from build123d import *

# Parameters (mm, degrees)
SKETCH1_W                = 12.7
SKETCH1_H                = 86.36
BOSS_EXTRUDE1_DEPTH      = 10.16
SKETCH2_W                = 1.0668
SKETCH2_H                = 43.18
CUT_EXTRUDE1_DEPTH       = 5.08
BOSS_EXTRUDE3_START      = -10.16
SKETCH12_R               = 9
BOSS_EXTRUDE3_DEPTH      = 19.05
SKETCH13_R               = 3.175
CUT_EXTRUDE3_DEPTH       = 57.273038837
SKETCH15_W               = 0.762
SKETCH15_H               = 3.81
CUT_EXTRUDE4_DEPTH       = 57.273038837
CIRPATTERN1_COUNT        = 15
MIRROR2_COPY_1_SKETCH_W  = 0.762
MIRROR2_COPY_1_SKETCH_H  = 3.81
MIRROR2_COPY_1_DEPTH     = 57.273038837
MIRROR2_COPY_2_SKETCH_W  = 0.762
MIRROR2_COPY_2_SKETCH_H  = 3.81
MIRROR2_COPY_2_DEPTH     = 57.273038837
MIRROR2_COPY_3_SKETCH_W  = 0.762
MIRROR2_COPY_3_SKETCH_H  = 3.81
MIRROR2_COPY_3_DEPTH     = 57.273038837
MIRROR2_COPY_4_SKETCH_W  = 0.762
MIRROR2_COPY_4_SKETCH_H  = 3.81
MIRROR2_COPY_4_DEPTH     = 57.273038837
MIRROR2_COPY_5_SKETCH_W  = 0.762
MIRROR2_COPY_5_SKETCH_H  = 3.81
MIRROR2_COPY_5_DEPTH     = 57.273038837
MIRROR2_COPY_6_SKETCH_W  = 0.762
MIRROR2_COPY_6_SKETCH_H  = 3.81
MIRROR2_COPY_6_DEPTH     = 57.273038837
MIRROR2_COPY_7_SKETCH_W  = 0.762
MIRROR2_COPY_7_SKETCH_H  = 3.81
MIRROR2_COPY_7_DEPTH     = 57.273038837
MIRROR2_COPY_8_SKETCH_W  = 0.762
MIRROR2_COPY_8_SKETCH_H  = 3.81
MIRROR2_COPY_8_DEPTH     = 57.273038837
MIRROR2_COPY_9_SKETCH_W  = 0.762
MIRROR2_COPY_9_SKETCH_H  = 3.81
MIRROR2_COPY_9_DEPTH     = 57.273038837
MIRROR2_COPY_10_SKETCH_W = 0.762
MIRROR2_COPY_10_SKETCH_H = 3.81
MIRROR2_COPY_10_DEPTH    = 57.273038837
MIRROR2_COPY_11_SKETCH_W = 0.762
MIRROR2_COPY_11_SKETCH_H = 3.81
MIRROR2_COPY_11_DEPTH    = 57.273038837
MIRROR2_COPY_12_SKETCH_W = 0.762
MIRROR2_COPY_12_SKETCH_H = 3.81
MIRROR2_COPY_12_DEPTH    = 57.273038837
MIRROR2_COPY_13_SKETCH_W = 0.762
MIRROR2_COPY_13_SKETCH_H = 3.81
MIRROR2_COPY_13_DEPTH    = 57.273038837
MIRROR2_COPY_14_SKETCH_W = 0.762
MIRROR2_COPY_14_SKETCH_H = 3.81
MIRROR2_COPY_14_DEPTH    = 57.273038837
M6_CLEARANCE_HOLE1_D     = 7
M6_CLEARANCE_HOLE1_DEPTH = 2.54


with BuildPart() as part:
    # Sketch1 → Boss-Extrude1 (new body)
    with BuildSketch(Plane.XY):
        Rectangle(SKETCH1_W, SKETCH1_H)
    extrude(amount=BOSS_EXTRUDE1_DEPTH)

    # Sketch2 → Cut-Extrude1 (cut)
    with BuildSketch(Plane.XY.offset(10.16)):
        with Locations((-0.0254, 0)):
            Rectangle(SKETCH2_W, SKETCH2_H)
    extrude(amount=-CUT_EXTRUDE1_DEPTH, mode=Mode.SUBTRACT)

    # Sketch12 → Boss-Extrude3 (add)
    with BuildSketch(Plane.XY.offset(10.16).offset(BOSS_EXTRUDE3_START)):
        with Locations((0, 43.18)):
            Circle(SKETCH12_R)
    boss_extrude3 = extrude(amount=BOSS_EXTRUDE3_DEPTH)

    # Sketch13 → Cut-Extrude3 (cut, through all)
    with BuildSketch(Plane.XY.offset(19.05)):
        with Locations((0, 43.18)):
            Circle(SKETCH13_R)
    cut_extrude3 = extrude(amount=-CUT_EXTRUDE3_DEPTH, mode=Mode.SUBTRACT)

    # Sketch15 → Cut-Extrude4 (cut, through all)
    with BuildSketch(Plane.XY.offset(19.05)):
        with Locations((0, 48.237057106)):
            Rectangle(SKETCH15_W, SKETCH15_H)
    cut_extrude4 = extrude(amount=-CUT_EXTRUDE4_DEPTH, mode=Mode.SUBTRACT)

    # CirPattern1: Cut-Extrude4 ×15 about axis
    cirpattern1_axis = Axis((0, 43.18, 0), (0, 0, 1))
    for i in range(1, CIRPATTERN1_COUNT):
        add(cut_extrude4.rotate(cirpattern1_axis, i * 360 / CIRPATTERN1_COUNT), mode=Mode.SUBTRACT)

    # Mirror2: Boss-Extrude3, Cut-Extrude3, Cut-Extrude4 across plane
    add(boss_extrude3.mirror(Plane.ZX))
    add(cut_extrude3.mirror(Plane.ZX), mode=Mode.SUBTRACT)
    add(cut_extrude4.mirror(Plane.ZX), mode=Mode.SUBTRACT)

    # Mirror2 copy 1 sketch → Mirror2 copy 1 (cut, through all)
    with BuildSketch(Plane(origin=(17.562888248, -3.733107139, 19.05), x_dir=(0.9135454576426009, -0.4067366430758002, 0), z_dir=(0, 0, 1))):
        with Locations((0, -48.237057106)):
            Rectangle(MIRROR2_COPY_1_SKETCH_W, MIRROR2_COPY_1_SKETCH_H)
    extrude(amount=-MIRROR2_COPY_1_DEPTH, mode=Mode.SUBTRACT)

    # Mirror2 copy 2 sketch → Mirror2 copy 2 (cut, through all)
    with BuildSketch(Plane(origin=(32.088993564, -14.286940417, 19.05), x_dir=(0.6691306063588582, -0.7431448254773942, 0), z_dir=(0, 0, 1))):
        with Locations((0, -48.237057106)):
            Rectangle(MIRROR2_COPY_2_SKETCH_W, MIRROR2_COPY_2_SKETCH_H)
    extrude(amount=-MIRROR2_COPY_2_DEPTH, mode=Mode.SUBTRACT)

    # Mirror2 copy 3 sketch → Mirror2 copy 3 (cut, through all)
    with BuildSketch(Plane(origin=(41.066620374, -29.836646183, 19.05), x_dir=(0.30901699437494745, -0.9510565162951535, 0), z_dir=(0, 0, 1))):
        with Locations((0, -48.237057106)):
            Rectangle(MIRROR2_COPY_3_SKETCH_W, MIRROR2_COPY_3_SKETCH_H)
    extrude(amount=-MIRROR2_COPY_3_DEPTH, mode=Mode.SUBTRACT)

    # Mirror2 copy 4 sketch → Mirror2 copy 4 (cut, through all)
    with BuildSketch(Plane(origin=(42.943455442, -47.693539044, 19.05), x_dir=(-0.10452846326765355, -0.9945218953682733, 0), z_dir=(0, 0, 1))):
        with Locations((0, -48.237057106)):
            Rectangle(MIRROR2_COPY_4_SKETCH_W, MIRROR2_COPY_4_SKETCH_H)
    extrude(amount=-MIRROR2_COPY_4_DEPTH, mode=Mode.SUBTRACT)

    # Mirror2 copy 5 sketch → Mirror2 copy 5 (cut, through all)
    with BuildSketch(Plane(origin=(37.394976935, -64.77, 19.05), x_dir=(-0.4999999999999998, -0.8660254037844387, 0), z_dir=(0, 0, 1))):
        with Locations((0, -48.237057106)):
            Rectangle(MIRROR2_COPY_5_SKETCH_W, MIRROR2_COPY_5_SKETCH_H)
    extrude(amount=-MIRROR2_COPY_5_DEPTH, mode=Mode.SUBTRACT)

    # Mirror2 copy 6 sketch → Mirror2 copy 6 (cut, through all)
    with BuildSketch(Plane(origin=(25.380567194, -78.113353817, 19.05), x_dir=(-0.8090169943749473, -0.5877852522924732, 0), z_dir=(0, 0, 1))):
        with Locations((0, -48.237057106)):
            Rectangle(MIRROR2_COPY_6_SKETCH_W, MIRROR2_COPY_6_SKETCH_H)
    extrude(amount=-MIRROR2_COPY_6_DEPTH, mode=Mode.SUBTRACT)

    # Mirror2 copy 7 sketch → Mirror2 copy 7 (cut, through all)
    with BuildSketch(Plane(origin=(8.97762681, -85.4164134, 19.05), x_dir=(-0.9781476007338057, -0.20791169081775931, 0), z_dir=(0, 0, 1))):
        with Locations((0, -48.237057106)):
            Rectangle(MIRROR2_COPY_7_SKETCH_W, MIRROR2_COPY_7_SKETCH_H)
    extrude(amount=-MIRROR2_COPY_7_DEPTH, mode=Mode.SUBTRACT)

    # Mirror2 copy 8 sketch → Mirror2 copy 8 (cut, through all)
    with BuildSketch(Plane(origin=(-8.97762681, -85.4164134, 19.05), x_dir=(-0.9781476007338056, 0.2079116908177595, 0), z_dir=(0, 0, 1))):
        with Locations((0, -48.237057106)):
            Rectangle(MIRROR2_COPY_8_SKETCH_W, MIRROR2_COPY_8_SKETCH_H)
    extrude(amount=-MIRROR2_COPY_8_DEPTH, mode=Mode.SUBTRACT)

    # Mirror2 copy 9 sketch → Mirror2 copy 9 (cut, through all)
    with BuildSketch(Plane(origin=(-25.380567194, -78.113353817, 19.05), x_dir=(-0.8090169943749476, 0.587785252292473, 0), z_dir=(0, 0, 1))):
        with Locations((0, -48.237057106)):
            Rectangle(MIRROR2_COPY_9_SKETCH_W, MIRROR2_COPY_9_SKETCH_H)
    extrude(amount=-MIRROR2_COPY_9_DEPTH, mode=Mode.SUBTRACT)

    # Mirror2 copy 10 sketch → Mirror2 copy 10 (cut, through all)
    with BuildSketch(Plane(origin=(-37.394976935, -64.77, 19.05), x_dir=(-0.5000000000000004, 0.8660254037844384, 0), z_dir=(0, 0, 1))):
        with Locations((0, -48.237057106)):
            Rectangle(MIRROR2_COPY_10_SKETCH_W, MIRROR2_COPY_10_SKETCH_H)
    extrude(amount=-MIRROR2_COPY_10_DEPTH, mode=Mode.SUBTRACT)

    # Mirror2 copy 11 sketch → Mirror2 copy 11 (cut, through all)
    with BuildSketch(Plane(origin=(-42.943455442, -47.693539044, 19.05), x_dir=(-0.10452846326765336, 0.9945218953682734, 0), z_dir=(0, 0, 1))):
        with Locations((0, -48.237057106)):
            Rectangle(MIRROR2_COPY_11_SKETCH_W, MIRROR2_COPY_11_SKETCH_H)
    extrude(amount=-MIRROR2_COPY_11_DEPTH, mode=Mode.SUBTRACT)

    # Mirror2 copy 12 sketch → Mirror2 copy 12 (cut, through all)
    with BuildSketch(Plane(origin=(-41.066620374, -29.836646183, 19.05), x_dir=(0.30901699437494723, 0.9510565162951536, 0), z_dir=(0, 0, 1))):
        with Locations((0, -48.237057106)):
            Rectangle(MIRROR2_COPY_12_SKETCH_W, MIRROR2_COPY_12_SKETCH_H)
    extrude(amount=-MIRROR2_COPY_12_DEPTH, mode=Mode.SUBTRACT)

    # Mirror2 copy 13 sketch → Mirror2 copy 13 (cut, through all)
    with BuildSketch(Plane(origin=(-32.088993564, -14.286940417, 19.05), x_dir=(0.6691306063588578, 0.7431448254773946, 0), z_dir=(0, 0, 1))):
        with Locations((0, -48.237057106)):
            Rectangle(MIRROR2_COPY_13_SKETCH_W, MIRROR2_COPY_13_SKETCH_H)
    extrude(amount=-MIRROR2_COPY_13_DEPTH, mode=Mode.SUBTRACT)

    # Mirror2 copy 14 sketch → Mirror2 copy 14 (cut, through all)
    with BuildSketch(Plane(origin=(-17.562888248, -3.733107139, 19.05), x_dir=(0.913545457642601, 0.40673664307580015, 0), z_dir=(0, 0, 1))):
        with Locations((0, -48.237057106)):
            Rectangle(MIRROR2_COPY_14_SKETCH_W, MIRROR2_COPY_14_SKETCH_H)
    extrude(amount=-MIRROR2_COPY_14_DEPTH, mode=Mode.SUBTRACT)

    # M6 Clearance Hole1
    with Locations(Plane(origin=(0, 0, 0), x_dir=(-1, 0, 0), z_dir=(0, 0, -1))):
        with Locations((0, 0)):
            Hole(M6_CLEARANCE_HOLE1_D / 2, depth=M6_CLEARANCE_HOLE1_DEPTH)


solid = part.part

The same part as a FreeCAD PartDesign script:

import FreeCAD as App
import Part
import Sketcher
Q = App.Units.Quantity

doc = App.newDocument("Part")
body = doc.addObject("PartDesign::Body", "Body")

# Sketch on XY plane
sketch1 = body.newObject("Sketcher::SketchObject", "Sketch")
sketch1.AttachmentSupport = (doc.getObject("XY_Plane"), [""])
sketch1.MapMode = "FlatFace"
sketch1.addGeometry(Part.LineSegment(App.Vector(-6, 43, 0), App.Vector(-6, -43, 0)), False)
sketch1.addGeometry(Part.LineSegment(App.Vector(-6, -43, 0), App.Vector(6, -43, 0)), False)
sketch1.addGeometry(Part.LineSegment(App.Vector(6, -43, 0), App.Vector(6, 43, 0)), False)
sketch1.addGeometry(Part.LineSegment(App.Vector(6, 43, 0), App.Vector(-6, 43, 0)), False)
sketch1.addConstraint(Sketcher.Constraint("Coincident", 0, 2, 1, 1))
sketch1.addConstraint(Sketcher.Constraint("Coincident", 1, 2, 2, 1))
sketch1.addConstraint(Sketcher.Constraint("Coincident", 2, 2, 3, 1))
sketch1.addConstraint(Sketcher.Constraint("Coincident", 3, 2, 0, 1))
sketch1.addConstraint(Sketcher.Constraint("Vertical", 0))
sketch1.addConstraint(Sketcher.Constraint("Horizontal", 1))
sketch1.addConstraint(Sketcher.Constraint("Vertical", 2))
sketch1.addConstraint(Sketcher.Constraint("Horizontal", 3))
sketch1.addConstraint(Sketcher.Constraint("Symmetric", 0, 2, 2, 2, -1, 1))
sketch1.addConstraint(Sketcher.Constraint("DistanceX", 1, 1, 1, 2, Q("0.5 in")))
sketch1.addConstraint(Sketcher.Constraint("DistanceY", 0, 2, 0, 1, Q("3.4 in")))
pad1 = body.newObject("PartDesign::Pad", "Pad")
pad1.Profile = sketch1
pad1.Length = Q("0.4 in")

# Sketch on XY plane
sketch2 = body.newObject("Sketcher::SketchObject", "Sketch001")
sketch2.AttachmentSupport = (doc.getObject("XY_Plane"), [""])
sketch2.MapMode = "FlatFace"
sketch2.AttachmentOffset = App.Placement(App.Vector(0, 0, 0.4 * 25.4), App.Rotation())
sketch2.addGeometry(Part.LineSegment(App.Vector(-0.6, 21.6, 0), App.Vector(-0.6, -21.6, 0)), False)
sketch2.addGeometry(Part.LineSegment(App.Vector(-0.6, -21.6, 0), App.Vector(0.5, -21.6, 0)), False)
sketch2.addGeometry(Part.LineSegment(App.Vector(0.5, -21.6, 0), App.Vector(0.5, 21.6, 0)), False)
sketch2.addGeometry(Part.LineSegment(App.Vector(0.5, 21.6, 0), App.Vector(-0.6, 21.6, 0)), False)
sketch2.addConstraint(Sketcher.Constraint("Coincident", 0, 2, 1, 1))
sketch2.addConstraint(Sketcher.Constraint("Coincident", 1, 2, 2, 1))
sketch2.addConstraint(Sketcher.Constraint("Coincident", 2, 2, 3, 1))
sketch2.addConstraint(Sketcher.Constraint("Coincident", 3, 2, 0, 1))
sketch2.addConstraint(Sketcher.Constraint("Vertical", 0))
sketch2.addConstraint(Sketcher.Constraint("Horizontal", 1))
sketch2.addConstraint(Sketcher.Constraint("Vertical", 2))
sketch2.addConstraint(Sketcher.Constraint("Horizontal", 3))
sketch2.addConstraint(Sketcher.Constraint("DistanceY", 0, 2, 0, 1, Q("1.7 in")))
sketch2.addConstraint(Sketcher.Constraint("DistanceX", 1, 1, 1, 2, Q("0.042 in")))
sketch2.addConstraint(Sketcher.Constraint("DistanceY", 0, 2, -1, 1, Q("0.85 in")))
sketch2.addConstraint(Sketcher.Constraint("DistanceX", -1, 1, 1, 2, Q("0.02 in")))
pocket1 = body.newObject("PartDesign::Pocket", "Pocket")
pocket1.Profile = sketch2
pocket1.Length = Q("0.2 in")

# Sketch on XY plane
sketch3 = body.newObject("Sketcher::SketchObject", "Sketch002")
sketch3.AttachmentSupport = (doc.getObject("XY_Plane"), [""])
sketch3.MapMode = "FlatFace"
sketch3.addGeometry(Part.Circle(App.Vector(0, 43, 0), App.Vector(0, 0, 1), 9), False)
sketch3.addConstraint(Sketcher.Constraint("PointOnObject", 0, 3, -2))
sketch3.addConstraint(Sketcher.Constraint("DistanceY", -1, 1, 0, 3, Q("1.7 in")))
sketch3.addConstraint(Sketcher.Constraint("Diameter", 0, Q("18 mm")))
pad2 = body.newObject("PartDesign::Pad", "Pad001")
pad2.Profile = sketch3
pad2.Length = Q("0.75 in")

# Sketch on XY plane
sketch4 = body.newObject("Sketcher::SketchObject", "Sketch003")
sketch4.AttachmentSupport = (doc.getObject("XY_Plane"), [""])
sketch4.MapMode = "FlatFace"
sketch4.AttachmentOffset = App.Placement(App.Vector(0, 0, 0.75 * 25.4), App.Rotation())
sketch4.addGeometry(Part.Circle(App.Vector(0, 43.2, 0), App.Vector(0, 0, 1), 3.2), False)
sketch4.addConstraint(Sketcher.Constraint("PointOnObject", 0, 3, -2))
sketch4.addConstraint(Sketcher.Constraint("Diameter", 0, Q("0.25 in")))
sketch4.addConstraint(Sketcher.Constraint("DistanceY", -1, 1, 0, 3, Q("1.7 in")))
pocket2 = body.newObject("PartDesign::Pocket", "Pocket001")
pocket2.Profile = sketch4
pocket2.Type = "ThroughAll"

# Sketch on XY plane
sketch5 = body.newObject("Sketcher::SketchObject", "Sketch004")
sketch5.AttachmentSupport = (doc.getObject("XY_Plane"), [""])
sketch5.MapMode = "FlatFace"
sketch5.AttachmentOffset = App.Placement(App.Vector(0, 0, 0.75 * 25.4), App.Rotation())
sketch5.addGeometry(Part.LineSegment(App.Vector(-0.4, 50.1, 0), App.Vector(-0.4, 46.3, 0)), False)
sketch5.addGeometry(Part.LineSegment(App.Vector(-0.4, 46.3, 0), App.Vector(0.4, 46.3, 0)), False)
sketch5.addGeometry(Part.LineSegment(App.Vector(0.4, 46.3, 0), App.Vector(0.4, 50.1, 0)), False)
sketch5.addGeometry(Part.LineSegment(App.Vector(0.4, 50.1, 0), App.Vector(-0.4, 50.1, 0)), False)
sketch5.addConstraint(Sketcher.Constraint("Coincident", 0, 2, 1, 1))
sketch5.addConstraint(Sketcher.Constraint("Coincident", 1, 2, 2, 1))
sketch5.addConstraint(Sketcher.Constraint("Coincident", 2, 2, 3, 1))
sketch5.addConstraint(Sketcher.Constraint("Coincident", 3, 2, 0, 1))
sketch5.addConstraint(Sketcher.Constraint("Vertical", 0))
sketch5.addConstraint(Sketcher.Constraint("Horizontal", 1))
sketch5.addConstraint(Sketcher.Constraint("Vertical", 2))
sketch5.addConstraint(Sketcher.Constraint("Horizontal", 3))
sketch5.addConstraint(Sketcher.Constraint("DistanceX", 1, 1, 1, 2, Q("0.03 in")))
sketch5.addConstraint(Sketcher.Constraint("DistanceY", 0, 2, 0, 1, Q("0.15 in")))
sketch5.addConstraint(Sketcher.Constraint("DistanceX", 0, 2, -1, 1, Q("0.015 in")))
sketch5.addConstraint(Sketcher.Constraint("DistanceY", -1, 1, 0, 2, Q("46.332057 mm")))
pocket3 = body.newObject("PartDesign::Pocket", "Pocket002")
pocket3.Profile = sketch5
pocket3.Type = "ThroughAll"
doc.recompute()

datumline = body.newObject("PartDesign::Line", "DatumLine")
datumline.Placement = App.Placement(App.Vector(0, 43.18, 0), App.Rotation(App.Vector(0, 0, 1), App.Vector(0, 0, 1)))
polarpattern = body.newObject("PartDesign::PolarPattern", "PolarPattern")
polarpattern.Originals = [pocket3]
polarpattern.Axis = (datumline, [""])
polarpattern.Angle = 360
polarpattern.Occurrences = 15
body.Tip = polarpattern
doc.recompute()

mirrored = body.newObject("PartDesign::Mirrored", "Mirrored")
mirrored.Originals = [pad2, pocket2, pocket3]
mirrored.MirrorPlane = (doc.getObject("XZ_Plane"), [""])
body.Tip = mirrored

# Sketch on XY plane
sketch6 = body.newObject("Sketcher::SketchObject", "Sketch005")
sketch6.AttachmentSupport = (doc.getObject("XY_Plane"), [""])
sketch6.MapMode = "FlatFace"
sketch6.AttachmentOffset = App.Placement(App.Vector(0, 0, 0.75 * 25.4), App.Rotation())
sketch6.addGeometry(Part.LineSegment(App.Vector(-1.6, -45.9, 0), App.Vector(-3.2, -49.4, 0)), False)
sketch6.addGeometry(Part.LineSegment(App.Vector(-3.2, -49.4, 0), App.Vector(-2.5, -49.7, 0)), False)
sketch6.addGeometry(Part.LineSegment(App.Vector(-2.5, -49.7, 0), App.Vector(-0.9, -46.2, 0)), False)
sketch6.addGeometry(Part.LineSegment(App.Vector(-0.9, -46.2, 0), App.Vector(-1.6, -45.9, 0)), False)
sketch6.addConstraint(Sketcher.Constraint("Coincident", 0, 2, 1, 1))
sketch6.addConstraint(Sketcher.Constraint("Coincident", 1, 2, 2, 1))
sketch6.addConstraint(Sketcher.Constraint("Coincident", 2, 2, 3, 1))
sketch6.addConstraint(Sketcher.Constraint("Coincident", 3, 2, 0, 1))
sketch6.addConstraint(Sketcher.Constraint("Perpendicular", 0, 1))
sketch6.addConstraint(Sketcher.Constraint("Perpendicular", 1, 2))
sketch6.addConstraint(Sketcher.Constraint("Perpendicular", 2, 3))
sketch6.addConstraint(Sketcher.Constraint("Angle", 0, Q("-114 deg")))
sketch6.addConstraint(Sketcher.Constraint("Distance", 0, Q("0.15 in")))
sketch6.addConstraint(Sketcher.Constraint("Distance", 1, Q("0.03 in")))
sketch6.addConstraint(Sketcher.Constraint("DistanceY", 0, 2, -1, 1, Q("49.385189 mm")))
sketch6.addConstraint(Sketcher.Constraint("DistanceX", 0, 2, -1, 1, Q("3.179785 mm")))
pocket4 = body.newObject("PartDesign::Pocket", "Pocket003")
pocket4.Profile = sketch6
pocket4.Type = "ThroughAll"

# Sketch on XY plane
sketch7 = body.newObject("Sketcher::SketchObject", "Sketch006")
sketch7.AttachmentSupport = (doc.getObject("XY_Plane"), [""])
sketch7.MapMode = "FlatFace"
sketch7.AttachmentOffset = App.Placement(App.Vector(0, 0, 0.75 * 25.4), App.Rotation())
sketch7.addGeometry(Part.LineSegment(App.Vector(-2.6, -45, 0), App.Vector(-5.4, -47.6, 0)), False)
sketch7.addGeometry(Part.LineSegment(App.Vector(-5.4, -47.6, 0), App.Vector(-4.9, -48.1, 0)), False)
sketch7.addGeometry(Part.LineSegment(App.Vector(-4.9, -48.1, 0), App.Vector(-2.1, -45.6, 0)), False)
sketch7.addGeometry(Part.LineSegment(App.Vector(-2.1, -45.6, 0), App.Vector(-2.6, -45, 0)), False)
sketch7.addConstraint(Sketcher.Constraint("Coincident", 0, 2, 1, 1))
sketch7.addConstraint(Sketcher.Constraint("Coincident", 1, 2, 2, 1))
sketch7.addConstraint(Sketcher.Constraint("Coincident", 2, 2, 3, 1))
sketch7.addConstraint(Sketcher.Constraint("Coincident", 3, 2, 0, 1))
sketch7.addConstraint(Sketcher.Constraint("Perpendicular", 0, 1))
sketch7.addConstraint(Sketcher.Constraint("Perpendicular", 1, 2))
sketch7.addConstraint(Sketcher.Constraint("Perpendicular", 2, 3))
sketch7.addConstraint(Sketcher.Constraint("Angle", 0, Q("-138 deg")))
sketch7.addConstraint(Sketcher.Constraint("Distance", 0, Q("0.15 in")))
sketch7.addConstraint(Sketcher.Constraint("Distance", 1, Q("0.03 in")))
sketch7.addConstraint(Sketcher.Constraint("DistanceY", 3, 2, -1, 1, Q("45.006 mm")))
sketch7.addConstraint(Sketcher.Constraint("DistanceX", 0, 2, -1, 1, Q("5.428755 mm")))
pocket5 = body.newObject("PartDesign::Pocket", "Pocket004")
pocket5.Profile = sketch7
pocket5.Type = "ThroughAll"

# Sketch on XY plane
sketch8 = body.newObject("Sketcher::SketchObject", "Sketch007")
sketch8.AttachmentSupport = (doc.getObject("XY_Plane"), [""])
sketch8.MapMode = "FlatFace"
sketch8.AttachmentOffset = App.Placement(App.Vector(0, 0, 0.75 * 25.4), App.Rotation())
sketch8.addGeometry(Part.LineSegment(App.Vector(-3.1, -43.8, 0), App.Vector(-6.7, -45, 0)), False)
sketch8.addGeometry(Part.LineSegment(App.Vector(-6.7, -45, 0), App.Vector(-6.5, -45.7, 0)), False)
sketch8.addGeometry(Part.LineSegment(App.Vector(-6.5, -45.7, 0), App.Vector(-2.9, -44.5, 0)), False)
sketch8.addGeometry(Part.LineSegment(App.Vector(-2.9, -44.5, 0), App.Vector(-3.1, -43.8, 0)), False)
sketch8.addConstraint(Sketcher.Constraint("Coincident", 0, 2, 1, 1))
sketch8.addConstraint(Sketcher.Constraint("Coincident", 1, 2, 2, 1))
sketch8.addConstraint(Sketcher.Constraint("Coincident", 2, 2, 3, 1))
sketch8.addConstraint(Sketcher.Constraint("Coincident", 3, 2, 0, 1))
sketch8.addConstraint(Sketcher.Constraint("Perpendicular", 0, 1))
sketch8.addConstraint(Sketcher.Constraint("Perpendicular", 1, 2))
sketch8.addConstraint(Sketcher.Constraint("Perpendicular", 2, 3))
sketch8.addConstraint(Sketcher.Constraint("Angle", 0, Q("-162 deg")))
sketch8.addConstraint(Sketcher.Constraint("Distance", 0, Q("0.15 in")))
sketch8.addConstraint(Sketcher.Constraint("Distance", 1, Q("0.03 in")))
sketch8.addConstraint(Sketcher.Constraint("DistanceY", 0, 2, -1, 1, Q("44.969041 mm")))
sketch8.addConstraint(Sketcher.Constraint("DistanceX", 2, 2, -1, 1, Q("2.880049 mm")))
pocket6 = body.newObject("PartDesign::Pocket", "Pocket005")
pocket6.Profile = sketch8
pocket6.Type = "ThroughAll"

# Sketch on XY plane
sketch9 = body.newObject("Sketcher::SketchObject", "Sketch008")
sketch9.AttachmentSupport = (doc.getObject("XY_Plane"), [""])
sketch9.MapMode = "FlatFace"
sketch9.AttachmentOffset = App.Placement(App.Vector(0, 0, 0.75 * 25.4), App.Rotation())
sketch9.addGeometry(Part.LineSegment(App.Vector(-3.1, -42.5, 0), App.Vector(-6.9, -42.1, 0)), False)
sketch9.addGeometry(Part.LineSegment(App.Vector(-6.9, -42.1, 0), App.Vector(-7, -42.8, 0)), False)
sketch9.addGeometry(Part.LineSegment(App.Vector(-7, -42.8, 0), App.Vector(-3.2, -43.2, 0)), False)
sketch9.addGeometry(Part.LineSegment(App.Vector(-3.2, -43.2, 0), App.Vector(-3.1, -42.5, 0)), False)
sketch9.addConstraint(Sketcher.Constraint("Coincident", 0, 2, 1, 1))
sketch9.addConstraint(Sketcher.Constraint("Coincident", 1, 2, 2, 1))
sketch9.addConstraint(Sketcher.Constraint("Coincident", 2, 2, 3, 1))
sketch9.addConstraint(Sketcher.Constraint("Coincident", 3, 2, 0, 1))
sketch9.addConstraint(Sketcher.Constraint("Perpendicular", 0, 1))
sketch9.addConstraint(Sketcher.Constraint("Perpendicular", 1, 2))
sketch9.addConstraint(Sketcher.Constraint("Perpendicular", 2, 3))
sketch9.addConstraint(Sketcher.Constraint("Angle", 0, Q("174 deg")))
sketch9.addConstraint(Sketcher.Constraint("Distance", 0, Q("0.15 in")))
sketch9.addConstraint(Sketcher.Constraint("Distance", 1, Q("0.03 in")))
sketch9.addConstraint(Sketcher.Constraint("DistanceY", 1, 2, -1, 1, Q("42.83118 mm")))
sketch9.addConstraint(Sketcher.Constraint("DistanceX", 0, 2, -1, 1, Q("6.884093 mm")))
pocket7 = body.newObject("PartDesign::Pocket", "Pocket006")
pocket7.Profile = sketch9
pocket7.Type = "ThroughAll"

# Sketch on XY plane
sketch10 = body.newObject("Sketcher::SketchObject", "Sketch009")
sketch10.AttachmentSupport = (doc.getObject("XY_Plane"), [""])
sketch10.MapMode = "FlatFace"
sketch10.AttachmentOffset = App.Placement(App.Vector(0, 0, 0.75 * 25.4), App.Rotation())
sketch10.addGeometry(Part.LineSegment(App.Vector(-2.5, -41.3, 0), App.Vector(-5.8, -39.4, 0)), False)
sketch10.addGeometry(Part.LineSegment(App.Vector(-5.8, -39.4, 0), App.Vector(-6.2, -40, 0)), False)
sketch10.addGeometry(Part.LineSegment(App.Vector(-6.2, -40, 0), App.Vector(-2.9, -41.9, 0)), False)
sketch10.addGeometry(Part.LineSegment(App.Vector(-2.9, -41.9, 0), App.Vector(-2.5, -41.3, 0)), False)
sketch10.addConstraint(Sketcher.Constraint("Coincident", 0, 2, 1, 1))
sketch10.addConstraint(Sketcher.Constraint("Coincident", 1, 2, 2, 1))
sketch10.addConstraint(Sketcher.Constraint("Coincident", 2, 2, 3, 1))
sketch10.addConstraint(Sketcher.Constraint("Coincident", 3, 2, 0, 1))
sketch10.addConstraint(Sketcher.Constraint("Perpendicular", 0, 1))
sketch10.addConstraint(Sketcher.Constraint("Perpendicular", 1, 2))
sketch10.addConstraint(Sketcher.Constraint("Perpendicular", 2, 3))
sketch10.addConstraint(Sketcher.Constraint("Angle", 0, Q("150 deg")))
sketch10.addConstraint(Sketcher.Constraint("Distance", 0, Q("0.15 in")))
sketch10.addConstraint(Sketcher.Constraint("Distance", 1, Q("0.03 in")))
sketch10.addConstraint(Sketcher.Constraint("DistanceX", 0, 2, -1, 1, Q("5.838818 mm")))
sketch10.addConstraint(Sketcher.Constraint("DistanceY", 0, 2, -1, 1, Q("39.369016 mm")))
pocket8 = body.newObject("PartDesign::Pocket", "Pocket007")
pocket8.Profile = sketch10
pocket8.Type = "ThroughAll"

# Sketch on XY plane
sketch11 = body.newObject("Sketcher::SketchObject", "Sketch010")
sketch11.AttachmentSupport = (doc.getObject("XY_Plane"), [""])
sketch11.MapMode = "FlatFace"
sketch11.AttachmentOffset = App.Placement(App.Vector(0, 0, 0.75 * 25.4), App.Rotation())
sketch11.addGeometry(Part.LineSegment(App.Vector(-1.5, -40.4, 0), App.Vector(-3.8, -37.3, 0)), False)
sketch11.addGeometry(Part.LineSegment(App.Vector(-3.8, -37.3, 0), App.Vector(-4.4, -37.8, 0)), False)
sketch11.addGeometry(Part.LineSegment(App.Vector(-4.4, -37.8, 0), App.Vector(-2.2, -40.9, 0)), False)
sketch11.addGeometry(Part.LineSegment(App.Vector(-2.2, -40.9, 0), App.Vector(-1.5, -40.4, 0)), False)
sketch11.addConstraint(Sketcher.Constraint("Coincident", 0, 2, 1, 1))
sketch11.addConstraint(Sketcher.Constraint("Coincident", 1, 2, 2, 1))
sketch11.addConstraint(Sketcher.Constraint("Coincident", 2, 2, 3, 1))
sketch11.addConstraint(Sketcher.Constraint("Coincident", 3, 2, 0, 1))
sketch11.addConstraint(Sketcher.Constraint("Perpendicular", 0, 1))
sketch11.addConstraint(Sketcher.Constraint("Perpendicular", 1, 2))
sketch11.addConstraint(Sketcher.Constraint("Perpendicular", 2, 3))
sketch11.addConstraint(Sketcher.Constraint("Angle", 0, Q("126 deg")))
sketch11.addConstraint(Sketcher.Constraint("Distance", 0, Q("0.15 in")))
sketch11.addConstraint(Sketcher.Constraint("Distance", 1, Q("0.03 in")))
sketch11.addConstraint(Sketcher.Constraint("DistanceX", 0, 2, -1, 1, Q("3.783959 mm")))
sketch11.addConstraint(Sketcher.Constraint("DistanceY", 0, 2, -1, 1, Q("37.323631 mm")))
pocket9 = body.newObject("PartDesign::Pocket", "Pocket008")
pocket9.Profile = sketch11
pocket9.Type = "ThroughAll"

# Sketch on XY plane
sketch12 = body.newObject("Sketcher::SketchObject", "Sketch011")
sketch12.AttachmentSupport = (doc.getObject("XY_Plane"), [""])
sketch12.MapMode = "FlatFace"
sketch12.AttachmentOffset = App.Placement(App.Vector(0, 0, 0.75 * 25.4), App.Rotation())
sketch12.addGeometry(Part.LineSegment(App.Vector(-0.3, -40, 0), App.Vector(-1.1, -36.3, 0)), False)
sketch12.addGeometry(Part.LineSegment(App.Vector(-1.1, -36.3, 0), App.Vector(-1.8, -36.4, 0)), False)
sketch12.addGeometry(Part.LineSegment(App.Vector(-1.8, -36.4, 0), App.Vector(-1, -40.2, 0)), False)
sketch12.addGeometry(Part.LineSegment(App.Vector(-1, -40.2, 0), App.Vector(-0.3, -40, 0)), False)
sketch12.addConstraint(Sketcher.Constraint("Coincident", 0, 2, 1, 1))
sketch12.addConstraint(Sketcher.Constraint("Coincident", 1, 2, 2, 1))
sketch12.addConstraint(Sketcher.Constraint("Coincident", 2, 2, 3, 1))
sketch12.addConstraint(Sketcher.Constraint("Coincident", 3, 2, 0, 1))
sketch12.addConstraint(Sketcher.Constraint("Perpendicular", 0, 1))
sketch12.addConstraint(Sketcher.Constraint("Perpendicular", 1, 2))
sketch12.addConstraint(Sketcher.Constraint("Perpendicular", 2, 3))
sketch12.addConstraint(Sketcher.Constraint("Angle", 0, Q("102 deg")))
sketch12.addConstraint(Sketcher.Constraint("Distance", 0, Q("0.15 in")))
sketch12.addConstraint(Sketcher.Constraint("Distance", 1, Q("0.03 in")))
sketch12.addConstraint(Sketcher.Constraint("DistanceX", 0, 2, -1, 1, Q("1.074819 mm")))
sketch12.addConstraint(Sketcher.Constraint("DistanceY", 3, 2, -1, 1, Q("40.017609 mm")))
pocket10 = body.newObject("PartDesign::Pocket", "Pocket009")
pocket10.Profile = sketch12
pocket10.Type = "ThroughAll"

# Sketch on XY plane
sketch13 = body.newObject("Sketcher::SketchObject", "Sketch012")
sketch13.AttachmentSupport = (doc.getObject("XY_Plane"), [""])
sketch13.MapMode = "FlatFace"
sketch13.AttachmentOffset = App.Placement(App.Vector(0, 0, 0.75 * 25.4), App.Rotation())
sketch13.addGeometry(Part.LineSegment(App.Vector(1, -40.2, 0), App.Vector(1.8, -36.4, 0)), False)
sketch13.addGeometry(Part.LineSegment(App.Vector(1.8, -36.4, 0), App.Vector(1.1, -36.3, 0)), False)
sketch13.addGeometry(Part.LineSegment(App.Vector(1.1, -36.3, 0), App.Vector(0.3, -40, 0)), False)
sketch13.addGeometry(Part.LineSegment(App.Vector(0.3, -40, 0), App.Vector(1, -40.2, 0)), False)
sketch13.addConstraint(Sketcher.Constraint("Coincident", 0, 2, 1, 1))
sketch13.addConstraint(Sketcher.Constraint("Coincident", 1, 2, 2, 1))
sketch13.addConstraint(Sketcher.Constraint("Coincident", 2, 2, 3, 1))
sketch13.addConstraint(Sketcher.Constraint("Coincident", 3, 2, 0, 1))
sketch13.addConstraint(Sketcher.Constraint("Perpendicular", 0, 1))
sketch13.addConstraint(Sketcher.Constraint("Perpendicular", 1, 2))
sketch13.addConstraint(Sketcher.Constraint("Perpendicular", 2, 3))
sketch13.addConstraint(Sketcher.Constraint("Angle", 0, Q("78 deg")))
sketch13.addConstraint(Sketcher.Constraint("Distance", 0, Q("0.15 in")))
sketch13.addConstraint(Sketcher.Constraint("Distance", 1, Q("0.03 in")))
sketch13.addConstraint(Sketcher.Constraint("DistanceX", -1, 1, 1, 2, Q("1.074819 mm")))
sketch13.addConstraint(Sketcher.Constraint("DistanceY", 2, 2, -1, 1, Q("40.017609 mm")))
pocket11 = body.newObject("PartDesign::Pocket", "Pocket010")
pocket11.Profile = sketch13
pocket11.Type = "ThroughAll"

# Sketch on XY plane
sketch14 = body.newObject("Sketcher::SketchObject", "Sketch013")
sketch14.AttachmentSupport = (doc.getObject("XY_Plane"), [""])
sketch14.MapMode = "FlatFace"
sketch14.AttachmentOffset = App.Placement(App.Vector(0, 0, 0.75 * 25.4), App.Rotation())
sketch14.addGeometry(Part.LineSegment(App.Vector(2.2, -40.9, 0), App.Vector(4.4, -37.8, 0)), False)
sketch14.addGeometry(Part.LineSegment(App.Vector(4.4, -37.8, 0), App.Vector(3.8, -37.3, 0)), False)
sketch14.addGeometry(Part.LineSegment(App.Vector(3.8, -37.3, 0), App.Vector(1.5, -40.4, 0)), False)
sketch14.addGeometry(Part.LineSegment(App.Vector(1.5, -40.4, 0), App.Vector(2.2, -40.9, 0)), False)
sketch14.addConstraint(Sketcher.Constraint("Coincident", 0, 2, 1, 1))
sketch14.addConstraint(Sketcher.Constraint("Coincident", 1, 2, 2, 1))
sketch14.addConstraint(Sketcher.Constraint("Coincident", 2, 2, 3, 1))
sketch14.addConstraint(Sketcher.Constraint("Coincident", 3, 2, 0, 1))
sketch14.addConstraint(Sketcher.Constraint("Perpendicular", 0, 1))
sketch14.addConstraint(Sketcher.Constraint("Perpendicular", 1, 2))
sketch14.addConstraint(Sketcher.Constraint("Perpendicular", 2, 3))
sketch14.addConstraint(Sketcher.Constraint("Angle", 0, Q("54 deg")))
sketch14.addConstraint(Sketcher.Constraint("Distance", 0, Q("0.15 in")))
sketch14.addConstraint(Sketcher.Constraint("Distance", 1, Q("0.03 in")))
sketch14.addConstraint(Sketcher.Constraint("DistanceX", -1, 1, 0, 2, Q("4.40043 mm")))
sketch14.addConstraint(Sketcher.Constraint("DistanceY", 1, 2, -1, 1, Q("37.323631 mm")))
pocket12 = body.newObject("PartDesign::Pocket", "Pocket011")
pocket12.Profile = sketch14
pocket12.Type = "ThroughAll"

# Sketch on XY plane
sketch15 = body.newObject("Sketcher::SketchObject", "Sketch014")
sketch15.AttachmentSupport = (doc.getObject("XY_Plane"), [""])
sketch15.MapMode = "FlatFace"
sketch15.AttachmentOffset = App.Placement(App.Vector(0, 0, 0.75 * 25.4), App.Rotation())
sketch15.addGeometry(Part.LineSegment(App.Vector(2.9, -41.9, 0), App.Vector(6.2, -40, 0)), False)
sketch15.addGeometry(Part.LineSegment(App.Vector(6.2, -40, 0), App.Vector(5.8, -39.4, 0)), False)
sketch15.addGeometry(Part.LineSegment(App.Vector(5.8, -39.4, 0), App.Vector(2.5, -41.3, 0)), False)
sketch15.addGeometry(Part.LineSegment(App.Vector(2.5, -41.3, 0), App.Vector(2.9, -41.9, 0)), False)
sketch15.addConstraint(Sketcher.Constraint("Coincident", 0, 2, 1, 1))
sketch15.addConstraint(Sketcher.Constraint("Coincident", 1, 2, 2, 1))
sketch15.addConstraint(Sketcher.Constraint("Coincident", 2, 2, 3, 1))
sketch15.addConstraint(Sketcher.Constraint("Coincident", 3, 2, 0, 1))
sketch15.addConstraint(Sketcher.Constraint("Perpendicular", 0, 1))
sketch15.addConstraint(Sketcher.Constraint("Perpendicular", 1, 2))
sketch15.addConstraint(Sketcher.Constraint("Perpendicular", 2, 3))
sketch15.addConstraint(Sketcher.Constraint("Angle", 0, Q("30 deg")))
sketch15.addConstraint(Sketcher.Constraint("Distance", 0, Q("0.15 in")))
sketch15.addConstraint(Sketcher.Constraint("Distance", 1, Q("0.03 in")))
sketch15.addConstraint(Sketcher.Constraint("DistanceX", -1, 1, 0, 2, Q("6.219818 mm")))
sketch15.addConstraint(Sketcher.Constraint("DistanceY", 0, 2, -1, 1, Q("40.028927 mm")))
pocket13 = body.newObject("PartDesign::Pocket", "Pocket012")
pocket13.Profile = sketch15
pocket13.Type = "ThroughAll"

# Sketch on XY plane
sketch16 = body.newObject("Sketcher::SketchObject", "Sketch015")
sketch16.AttachmentSupport = (doc.getObject("XY_Plane"), [""])
sketch16.MapMode = "FlatFace"
sketch16.AttachmentOffset = App.Placement(App.Vector(0, 0, 0.75 * 25.4), App.Rotation())
sketch16.addGeometry(Part.LineSegment(App.Vector(3.2, -43.2, 0), App.Vector(7, -42.8, 0)), False)
sketch16.addGeometry(Part.LineSegment(App.Vector(7, -42.8, 0), App.Vector(6.9, -42.1, 0)), False)
sketch16.addGeometry(Part.LineSegment(App.Vector(6.9, -42.1, 0), App.Vector(3.1, -42.5, 0)), False)
sketch16.addGeometry(Part.LineSegment(App.Vector(3.1, -42.5, 0), App.Vector(3.2, -43.2, 0)), False)
sketch16.addConstraint(Sketcher.Constraint("Coincident", 0, 2, 1, 1))
sketch16.addConstraint(Sketcher.Constraint("Coincident", 1, 2, 2, 1))
sketch16.addConstraint(Sketcher.Constraint("Coincident", 2, 2, 3, 1))
sketch16.addConstraint(Sketcher.Constraint("Coincident", 3, 2, 0, 1))
sketch16.addConstraint(Sketcher.Constraint("Perpendicular", 0, 1))
sketch16.addConstraint(Sketcher.Constraint("Perpendicular", 1, 2))
sketch16.addConstraint(Sketcher.Constraint("Perpendicular", 2, 3))
sketch16.addConstraint(Sketcher.Constraint("Angle", 0, Q("6 deg")))
sketch16.addConstraint(Sketcher.Constraint("Distance", 0, Q("0.15 in")))
sketch16.addConstraint(Sketcher.Constraint("Distance", 1, Q("0.03 in")))
sketch16.addConstraint(Sketcher.Constraint("DistanceY", 0, 2, -1, 1, Q("42.83118 mm")))
sketch16.addConstraint(Sketcher.Constraint("DistanceX", -1, 1, 0, 2, Q("6.963744 mm")))
pocket14 = body.newObject("PartDesign::Pocket", "Pocket013")
pocket14.Profile = sketch16
pocket14.Type = "ThroughAll"

# Sketch on XY plane
sketch17 = body.newObject("Sketcher::SketchObject", "Sketch016")
sketch17.AttachmentSupport = (doc.getObject("XY_Plane"), [""])
sketch17.MapMode = "FlatFace"
sketch17.AttachmentOffset = App.Placement(App.Vector(0, 0, 0.75 * 25.4), App.Rotation())
sketch17.addGeometry(Part.LineSegment(App.Vector(2.9, -44.5, 0), App.Vector(6.5, -45.7, 0)), False)
sketch17.addGeometry(Part.LineSegment(App.Vector(6.5, -45.7, 0), App.Vector(6.7, -45, 0)), False)
sketch17.addGeometry(Part.LineSegment(App.Vector(6.7, -45, 0), App.Vector(3.1, -43.8, 0)), False)
sketch17.addGeometry(Part.LineSegment(App.Vector(3.1, -43.8, 0), App.Vector(2.9, -44.5, 0)), False)
sketch17.addConstraint(Sketcher.Constraint("Coincident", 0, 2, 1, 1))
sketch17.addConstraint(Sketcher.Constraint("Coincident", 1, 2, 2, 1))
sketch17.addConstraint(Sketcher.Constraint("Coincident", 2, 2, 3, 1))
sketch17.addConstraint(Sketcher.Constraint("Coincident", 3, 2, 0, 1))
sketch17.addConstraint(Sketcher.Constraint("Perpendicular", 0, 1))
sketch17.addConstraint(Sketcher.Constraint("Perpendicular", 1, 2))
sketch17.addConstraint(Sketcher.Constraint("Perpendicular", 2, 3))
sketch17.addConstraint(Sketcher.Constraint("Angle", 0, Q("-18 deg")))
sketch17.addConstraint(Sketcher.Constraint("Distance", 0, Q("0.15 in")))
sketch17.addConstraint(Sketcher.Constraint("Distance", 1, Q("0.03 in")))
sketch17.addConstraint(Sketcher.Constraint("DistanceY", 1, 2, -1, 1, Q("44.969041 mm")))
sketch17.addConstraint(Sketcher.Constraint("DistanceX", -1, 1, 2, 2, Q("3.11552 mm")))
pocket15 = body.newObject("PartDesign::Pocket", "Pocket014")
pocket15.Profile = sketch17
pocket15.Type = "ThroughAll"

# Sketch on XY plane
sketch18 = body.newObject("Sketcher::SketchObject", "Sketch017")
sketch18.AttachmentSupport = (doc.getObject("XY_Plane"), [""])
sketch18.MapMode = "FlatFace"
sketch18.AttachmentOffset = App.Placement(App.Vector(0, 0, 0.75 * 25.4), App.Rotation())
sketch18.addGeometry(Part.LineSegment(App.Vector(2.1, -45.6, 0), App.Vector(4.9, -48.1, 0)), False)
sketch18.addGeometry(Part.LineSegment(App.Vector(4.9, -48.1, 0), App.Vector(5.4, -47.6, 0)), False)
sketch18.addGeometry(Part.LineSegment(App.Vector(5.4, -47.6, 0), App.Vector(2.6, -45, 0)), False)
sketch18.addGeometry(Part.LineSegment(App.Vector(2.6, -45, 0), App.Vector(2.1, -45.6, 0)), False)
sketch18.addConstraint(Sketcher.Constraint("Coincident", 0, 2, 1, 1))
sketch18.addConstraint(Sketcher.Constraint("Coincident", 1, 2, 2, 1))
sketch18.addConstraint(Sketcher.Constraint("Coincident", 2, 2, 3, 1))
sketch18.addConstraint(Sketcher.Constraint("Coincident", 3, 2, 0, 1))
sketch18.addConstraint(Sketcher.Constraint("Perpendicular", 0, 1))
sketch18.addConstraint(Sketcher.Constraint("Perpendicular", 1, 2))
sketch18.addConstraint(Sketcher.Constraint("Perpendicular", 2, 3))
sketch18.addConstraint(Sketcher.Constraint("Angle", 0, Q("-42 deg")))
sketch18.addConstraint(Sketcher.Constraint("Distance", 0, Q("0.15 in")))
sketch18.addConstraint(Sketcher.Constraint("Distance", 1, Q("0.03 in")))
sketch18.addConstraint(Sketcher.Constraint("DistanceY", 2, 2, -1, 1, Q("45.006 mm")))
sketch18.addConstraint(Sketcher.Constraint("DistanceX", -1, 1, 0, 2, Q("4.918878 mm")))
pocket16 = body.newObject("PartDesign::Pocket", "Pocket015")
pocket16.Profile = sketch18
pocket16.Type = "ThroughAll"

# Sketch on XY plane
sketch19 = body.newObject("Sketcher::SketchObject", "Sketch018")
sketch19.AttachmentSupport = (doc.getObject("XY_Plane"), [""])
sketch19.MapMode = "FlatFace"
sketch19.AttachmentOffset = App.Placement(App.Vector(0, 0, 0.75 * 25.4), App.Rotation())
sketch19.addGeometry(Part.LineSegment(App.Vector(0.9, -46.2, 0), App.Vector(2.5, -49.7, 0)), False)
sketch19.addGeometry(Part.LineSegment(App.Vector(2.5, -49.7, 0), App.Vector(3.2, -49.4, 0)), False)
sketch19.addGeometry(Part.LineSegment(App.Vector(3.2, -49.4, 0), App.Vector(1.6, -45.9, 0)), False)
sketch19.addGeometry(Part.LineSegment(App.Vector(1.6, -45.9, 0), App.Vector(0.9, -46.2, 0)), False)
sketch19.addConstraint(Sketcher.Constraint("Coincident", 0, 2, 1, 1))
sketch19.addConstraint(Sketcher.Constraint("Coincident", 1, 2, 2, 1))
sketch19.addConstraint(Sketcher.Constraint("Coincident", 2, 2, 3, 1))
sketch19.addConstraint(Sketcher.Constraint("Coincident", 3, 2, 0, 1))
sketch19.addConstraint(Sketcher.Constraint("Perpendicular", 0, 1))
sketch19.addConstraint(Sketcher.Constraint("Perpendicular", 1, 2))
sketch19.addConstraint(Sketcher.Constraint("Perpendicular", 2, 3))
sketch19.addConstraint(Sketcher.Constraint("Angle", 0, Q("-66 deg")))
sketch19.addConstraint(Sketcher.Constraint("Distance", 0, Q("0.15 in")))
sketch19.addConstraint(Sketcher.Constraint("Distance", 1, Q("0.03 in")))
sketch19.addConstraint(Sketcher.Constraint("DistanceY", 1, 2, -1, 1, Q("49.385189 mm")))
sketch19.addConstraint(Sketcher.Constraint("DistanceX", -1, 1, 0, 2, Q("2.483663 mm")))
pocket17 = body.newObject("PartDesign::Pocket", "Pocket016")
pocket17.Profile = sketch19
pocket17.Type = "ThroughAll"

# Sketch on XY plane
sketch20 = body.newObject("Sketcher::SketchObject", "Sketch019")
sketch20.AttachmentSupport = (doc.getObject("XY_Plane"), [""])
sketch20.MapMode = "FlatFace"
sketch20.addGeometry(Part.Circle(App.Vector(0, 0, 0), App.Vector(0, 0, 1), 3.5), False)
sketch20.addConstraint(Sketcher.Constraint("Coincident", 0, 3, -1, 1))
sketch20.addConstraint(Sketcher.Constraint("Diameter", 0, Q("7 mm")))
doc.recompute()
hole = body.newObject("PartDesign::Hole", "Hole")
hole.Profile = sketch20
hole.ThreadType = "None"
hole.Diameter = 7
hole.DepthType = "Dimension"
hole.Depth = Q("0.1 in")
hole.DrillPoint = "Flat"
hole.Reversed = True

doc.recompute()
